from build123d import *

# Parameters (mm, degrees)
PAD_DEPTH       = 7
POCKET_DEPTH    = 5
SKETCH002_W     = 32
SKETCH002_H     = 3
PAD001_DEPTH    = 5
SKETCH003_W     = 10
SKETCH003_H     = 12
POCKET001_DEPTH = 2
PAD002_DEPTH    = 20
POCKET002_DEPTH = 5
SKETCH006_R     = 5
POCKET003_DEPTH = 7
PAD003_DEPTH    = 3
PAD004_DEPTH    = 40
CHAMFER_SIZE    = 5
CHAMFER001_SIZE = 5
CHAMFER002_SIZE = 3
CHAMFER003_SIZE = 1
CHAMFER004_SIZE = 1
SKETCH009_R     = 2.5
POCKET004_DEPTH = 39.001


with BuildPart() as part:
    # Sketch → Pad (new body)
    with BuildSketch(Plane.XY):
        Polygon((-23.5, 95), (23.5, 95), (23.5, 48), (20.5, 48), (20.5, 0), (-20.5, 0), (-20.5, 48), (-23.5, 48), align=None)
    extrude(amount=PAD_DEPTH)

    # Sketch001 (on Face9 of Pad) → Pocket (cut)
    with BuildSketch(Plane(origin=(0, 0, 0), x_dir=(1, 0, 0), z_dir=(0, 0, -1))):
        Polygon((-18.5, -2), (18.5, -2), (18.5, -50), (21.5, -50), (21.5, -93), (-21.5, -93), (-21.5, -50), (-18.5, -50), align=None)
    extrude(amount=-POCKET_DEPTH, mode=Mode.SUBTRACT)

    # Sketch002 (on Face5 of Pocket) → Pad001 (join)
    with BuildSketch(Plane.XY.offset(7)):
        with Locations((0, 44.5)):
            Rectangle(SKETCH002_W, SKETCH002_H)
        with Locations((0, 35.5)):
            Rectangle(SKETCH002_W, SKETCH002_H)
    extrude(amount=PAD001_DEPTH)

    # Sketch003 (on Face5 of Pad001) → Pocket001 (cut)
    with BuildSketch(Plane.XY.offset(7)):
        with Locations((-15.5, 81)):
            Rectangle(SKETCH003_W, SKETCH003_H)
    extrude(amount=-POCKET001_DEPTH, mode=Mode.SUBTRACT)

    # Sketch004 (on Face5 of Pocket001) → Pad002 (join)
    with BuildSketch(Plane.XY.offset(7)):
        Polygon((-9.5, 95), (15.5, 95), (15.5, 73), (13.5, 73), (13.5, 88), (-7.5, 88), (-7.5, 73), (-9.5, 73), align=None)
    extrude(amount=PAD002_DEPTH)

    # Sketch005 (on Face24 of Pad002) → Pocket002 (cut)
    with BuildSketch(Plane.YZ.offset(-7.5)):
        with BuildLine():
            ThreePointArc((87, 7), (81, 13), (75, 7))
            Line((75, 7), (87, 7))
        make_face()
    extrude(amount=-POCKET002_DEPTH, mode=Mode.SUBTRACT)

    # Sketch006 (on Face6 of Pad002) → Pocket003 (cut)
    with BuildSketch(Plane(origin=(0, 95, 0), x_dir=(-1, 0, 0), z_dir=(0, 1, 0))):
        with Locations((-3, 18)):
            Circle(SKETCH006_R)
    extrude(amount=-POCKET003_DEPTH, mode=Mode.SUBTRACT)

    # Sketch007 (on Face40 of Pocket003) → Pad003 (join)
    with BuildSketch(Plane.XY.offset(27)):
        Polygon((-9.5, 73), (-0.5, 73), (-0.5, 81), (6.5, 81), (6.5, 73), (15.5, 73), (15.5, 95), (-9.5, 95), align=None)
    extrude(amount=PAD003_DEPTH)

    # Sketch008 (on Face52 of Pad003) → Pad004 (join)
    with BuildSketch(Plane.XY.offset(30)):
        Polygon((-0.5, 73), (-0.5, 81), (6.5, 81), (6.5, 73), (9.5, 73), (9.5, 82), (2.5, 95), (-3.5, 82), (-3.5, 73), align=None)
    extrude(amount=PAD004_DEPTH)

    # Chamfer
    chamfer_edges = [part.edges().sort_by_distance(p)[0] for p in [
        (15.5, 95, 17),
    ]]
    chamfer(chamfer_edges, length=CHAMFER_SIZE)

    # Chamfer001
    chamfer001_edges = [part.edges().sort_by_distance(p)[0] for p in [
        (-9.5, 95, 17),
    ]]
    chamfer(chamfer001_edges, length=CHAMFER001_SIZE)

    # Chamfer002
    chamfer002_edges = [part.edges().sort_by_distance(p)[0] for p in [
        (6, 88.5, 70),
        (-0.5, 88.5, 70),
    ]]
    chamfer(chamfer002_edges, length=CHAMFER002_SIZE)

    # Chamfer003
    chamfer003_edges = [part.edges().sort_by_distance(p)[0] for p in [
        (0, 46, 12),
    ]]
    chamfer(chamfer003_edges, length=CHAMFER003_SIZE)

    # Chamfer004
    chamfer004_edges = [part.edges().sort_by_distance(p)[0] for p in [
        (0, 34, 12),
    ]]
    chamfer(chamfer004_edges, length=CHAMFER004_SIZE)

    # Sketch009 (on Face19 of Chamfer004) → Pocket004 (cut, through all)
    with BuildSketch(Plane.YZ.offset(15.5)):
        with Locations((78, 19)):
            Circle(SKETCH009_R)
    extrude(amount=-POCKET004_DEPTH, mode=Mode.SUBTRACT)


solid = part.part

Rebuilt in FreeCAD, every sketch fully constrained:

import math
import FreeCAD as App
import Part
import Sketcher

V = App.Vector
Q = App.Units.Quantity


def edges_at(feature, points):
    """Names of the edges that pass closest to the given points."""
    edges = feature.Shape.Edges
    near = lambda p: min(range(len(edges)), key=lambda i: edges[i].distToShape(Part.Vertex(*p))[0])
    return sorted({f"Edge{near(p) + 1}" for p in points})


def add_polygon(sketch, points):
    """Adds a closed chain of lines whose ends are joined by coincident constraints."""
    first, n = sketch.GeometryCount, len(points)
    for a, b in zip(points, points[1:] + points[:1]):
        sketch.addGeometry(Part.LineSegment(App.Vector(*a, 0), App.Vector(*b, 0)), False)
    for i in range(n):
        sketch.addConstraint(Sketcher.Constraint("Coincident", first + i, 2, first + (i + 1) % n, 1))

doc = App.newDocument("Part")
params = doc.addObject("Spreadsheet::Sheet", "Params")
for row, (alias, value) in enumerate([
    ("sketch1_width", "47 mm"),
    ("sketch1_width2", "3 mm"),
    ("sketch1_height", "48 mm"),
    ("pad1_length", "7 mm"),
    ("sketch2_width", "37 mm"),
    ("sketch2_width2", "3 mm"),
    ("sketch2_height", "48 mm"),
    ("pocket1_length", "5 mm"),
    ("sketch3_width", "32 mm"),
    ("sketch3_height", "3 mm"),
    ("pad2_length", "5 mm"),
    ("sketch4_width", "10 mm"),
    ("sketch4_height", "12 mm"),
    ("pocket2_length", "2 mm"),
    ("sketch5_width", "25 mm"),
    ("sketch5_width2", "2 mm"),
    ("sketch5_height", "22 mm"),
    ("sketch5_height2", "15 mm"),
    ("pad3_length", "20 mm"),
    ("sketch6_radius", "6 mm"),
    ("pocket3_length", "5 mm"),
    ("sketch7_diameter", "10 mm"),
    ("pocket4_length", "7 mm"),
    ("sketch8_width", "9 mm"),
    ("sketch8_width2", "7 mm"),
    ("sketch8_height", "8 mm"),
    ("sketch8_height2", "22 mm"),
    ("pad4_length", "3 mm"),
    ("sketch9_width", "7 mm"),
    ("sketch9_width2", "3 mm"),
    ("sketch9_height", "8 mm"),
    ("sketch9_height2", "9 mm"),
    ("pad5_length", "40 mm"),
    ("chamfer_size", "5 mm"),
    ("chamfer2_size", "5 mm"),
    ("chamfer3_size", "3 mm"),
    ("chamfer4_size", "1 mm"),
    ("chamfer5_size", "1 mm"),
    ("sketch10_diameter", "5 mm"),
], start=1):
    params.set(f"A{row}", alias)
    params.set(f"B{row}", "=" + value)
    params.setAlias(f"B{row}", alias)

body = doc.addObject("PartDesign::Body", "Body")

# Sketch on XY plane
sketch1 = doc.addObject("Sketcher::SketchObject", "Sketch")
body.addObject(sketch1)
sketch1.AttachmentSupport = (doc.XY_Plane, [""])
sketch1.MapMode = "FlatFace"
add_polygon(sketch1, [(23.5, 95), (-23.5, 95), (-23.5, 48), (-20.5, 48), (-20.5, 0), (20.5, 0), (20.5, 48), (23.5, 48)])  # lines 0-7
sketch1.addConstraint([
    Sketcher.Constraint("Horizontal", 0),
    Sketcher.Constraint("Vertical", 1),
    Sketcher.Constraint("Horizontal", 2),
    Sketcher.Constraint("Vertical", 3),
    Sketcher.Constraint("Horizontal", 4),
    Sketcher.Constraint("Vertical", 5),
    Sketcher.Constraint("Horizontal", 6),
    Sketcher.Constraint("Vertical", 7),
    Sketcher.Constraint("Symmetric", 3, 2, 4, 2, -1, 1),
    Sketcher.Constraint("Symmetric", 1, 2, 6, 2, -2),
    Sketcher.Constraint("Equal", 0, 1),
    Sketcher.Constraint("DistanceX", 0, 2, 0, 1, Q("47 mm")),
    Sketcher.Constraint("DistanceX", 2, 1, 2, 2, Q("3 mm")),
    Sketcher.Constraint("DistanceY", 3, 2, 3, 1, Q("48 mm")),
])
sketch1.setExpression("Constraints[19]", "Params.sketch1_width")
sketch1.setExpression("Constraints[20]", "Params.sketch1_width2")
sketch1.setExpression("Constraints[21]", "Params.sketch1_height")
pad1 = doc.addObject("PartDesign::Pad", "Pad")
body.addObject(pad1)
pad1.Profile = sketch1
pad1.setExpression("Length", "Params.pad1_length")

# Sketch on XY plane
sketch2 = doc.addObject("Sketcher::SketchObject", "Sketch001")
body.addObject(sketch2)
sketch2.AttachmentSupport = (doc.XY_Plane, [""])
sketch2.MapMode = "FlatFace"
add_polygon(sketch2, [(18.5, 2), (-18.5, 2), (-18.5, 50), (-21.5, 50), (-21.5, 93), (21.5, 93), (21.5, 50), (18.5, 50)])  # lines 0-7
sketch2.addConstraint([
    Sketcher.Constraint("Horizontal", 0),
    Sketcher.Constraint("Vertical", 1),
    Sketcher.Constraint("Horizontal", 2),
    Sketcher.Constraint("Vertical", 3),
    Sketcher.Constraint("Horizontal", 4),
    Sketcher.Constraint("Vertical", 5),
    Sketcher.Constraint("Horizontal", 6),
    Sketcher.Constraint("Vertical", 7),
    Sketcher.Constraint("Symmetric", 2, 2, 5, 2, -2),
    Sketcher.Constraint("Equal", 2, 6),
    Sketcher.Constraint("Equal", 4, 3),
    Sketcher.Constraint("DistanceX", 0, 2, 0, 1, Q("37 mm")),
    Sketcher.Constraint("DistanceX", 2, 2, 2, 1, Q("3 mm")),
    Sketcher.Constraint("DistanceY", 1, 1, 1, 2, Q("48 mm")),
    Sketcher.Constraint("DistanceY", -1, 1, 0, 2, Q("2 mm")),
])
sketch2.setExpression("Constraints[19]", "Params.sketch2_width")
sketch2.setExpression("Constraints[20]", "Params.sketch2_width2")
sketch2.setExpression("Constraints[21]", "Params.sketch2_height")
pocket1 = doc.addObject("PartDesign::Pocket", "Pocket")
body.addObject(pocket1)
pocket1.Profile = sketch2
pocket1.setExpression("Length", "Params.pocket1_length")
pocket1.Reversed = True

# Sketch on XY plane
sketch3 = doc.addObject("Sketcher::SketchObject", "Sketch002")
body.addObject(sketch3)
sketch3.AttachmentSupport = (doc.XY_Plane, [""])
sketch3.MapMode = "FlatFace"
sketch3.AttachmentOffset = App.Placement(V(0, 0, 7), App.Rotation())
add_polygon(sketch3, [(-16, 46), (-16, 43), (16, 43), (16, 46)])  # lines 0-3
add_polygon(sketch3, [(-16, 37), (-16, 34), (16, 34), (16, 37)])  # lines 4-7
sketch3.addConstraint([
    Sketcher.Constraint("Vertical", 0),
    Sketcher.Constraint("Horizontal", 1),
    Sketcher.Constraint("Vertical", 2),
    Sketcher.Constraint("Horizontal", 3),
    Sketcher.Constraint("Vertical", 4),
    Sketcher.Constraint("Horizontal", 5),
    Sketcher.Constraint("Vertical", 6),
    Sketcher.Constraint("Horizontal", 7),
    Sketcher.Constraint("Vertical", 3, 2, 4, 2),
    Sketcher.Constraint("Vertical", 2, 2, 5, 2),
    Sketcher.Constraint("Equal", 2, 4),
    Sketcher.Constraint("DistanceX", 1, 1, 1, 2, Q("32 mm")),
    Sketcher.Constraint("DistanceY", 0, 2, 0, 1, Q("3 mm")),
    Sketcher.Constraint("DistanceX", 0, 2, -1, 1, Q("16 mm")),
    Sketcher.Constraint("DistanceY", -1, 1, 0, 2, Q("43 mm")),
    Sketcher.Constraint("DistanceY", -1, 1, 4, 2, Q("34 mm")),
])
sketch3.setExpression("Constraints[19]", "Params.sketch3_width")
sketch3.setExpression("Constraints[20]", "Params.sketch3_height")
pad2 = doc.addObject("PartDesign::Pad", "Pad001")
body.addObject(pad2)
pad2.Profile = sketch3
pad2.setExpression("Length", "Params.pad2_length")

# Sketch on XY plane
sketch4 = doc.addObject("Sketcher::SketchObject", "Sketch003")
body.addObject(sketch4)
sketch4.AttachmentSupport = (doc.XY_Plane, [""])
sketch4.MapMode = "FlatFace"
sketch4.AttachmentOffset = App.Placement(V(0, 0, 7), App.Rotation())
add_polygon(sketch4, [(-20, 87), (-20, 75), (-10, 75), (-10, 87)])  # lines 0-3
sketch4.addConstraint([
    Sketcher.Constraint("Vertical", 0),
    Sketcher.Constraint("Horizontal", 1),
    Sketcher.Constraint("Vertical", 2),
    Sketcher.Constraint("Horizontal", 3),
    Sketcher.Constraint("DistanceX", 1, 1, 1, 2, Q("10 mm")),
    Sketcher.Constraint("DistanceY", 0, 2, 0, 1, Q("12 mm")),
    Sketcher.Constraint("DistanceY", -1, 1, 0, 2, Q("75 mm")),
    Sketcher.Constraint("DistanceX", 0, 2, -1, 1, Q("20.5 mm")),
])
sketch4.setExpression("Constraints[8]", "Params.sketch4_width")
sketch4.setExpression("Constraints[9]", "Params.sketch4_height")
pocket2 = doc.addObject("PartDesign::Pocket", "Pocket001")
body.addObject(pocket2)
pocket2.Profile = sketch4
pocket2.setExpression("Length", "Params.pocket2_length")

# Sketch on XY plane
sketch5 = doc.addObject("Sketcher::SketchObject", "Sketch004")
body.addObject(sketch5)
sketch5.AttachmentSupport = (doc.XY_Plane, [""])
sketch5.MapMode = "FlatFace"
sketch5.AttachmentOffset = App.Placement(V(0, 0, 7), App.Rotation())
add_polygon(sketch5, [(15.5, 95), (-9.5, 95), (-9.5, 73), (-7.5, 73), (-7.5, 88), (13.5, 88), (13.5, 73), (15.5, 73)])  # lines 0-7
sketch5.addConstraint([
    Sketcher.Constraint("Horizontal", 0),
    Sketcher.Constraint("Vertical", 1),
    Sketcher.Constraint("Horizontal", 2),
    Sketcher.Constraint("Vertical", 3),
    Sketcher.Constraint("Horizontal", 4),
    Sketcher.Constraint("Vertical", 5),
    Sketcher.Constraint("Horizontal", 6),
    Sketcher.Constraint("Vertical", 7),
    Sketcher.Constraint("Horizontal", 2, 2, 5, 2),
    Sketcher.Constraint("Equal", 2, 6),
    Sketcher.Constraint("DistanceX", 0, 2, 0, 1, Q("25 mm")),
    Sketcher.Constraint("DistanceX", 2, 1, 2, 2, Q("2 mm")),
    Sketcher.Constraint("DistanceY", 1, 2, 1, 1, Q("22 mm")),
    Sketcher.Constraint("DistanceY", 3, 1, 3, 2, Q("15 mm")),
    Sketcher.Constraint("DistanceY", -1, 1, 0, 2, Q("95 mm")),
    Sketcher.Constraint("DistanceX", 0, 2, -1, 1, Q("9.5 mm")),
])
sketch5.setExpression("Constraints[18]", "Params.sketch5_width")
sketch5.setExpression("Constraints[19]", "Params.sketch5_width2")
sketch5.setExpression("Constraints[20]", "Params.sketch5_height")
sketch5.setExpression("Constraints[21]", "Params.sketch5_height2")
pad3 = doc.addObject("PartDesign::Pad", "Pad002")
body.addObject(pad3)
pad3.Profile = sketch5
pad3.setExpression("Length", "Params.pad3_length")

# Sketch on YZ plane
sketch6 = doc.addObject("Sketcher::SketchObject", "Sketch005")
body.addObject(sketch6)
sketch6.AttachmentSupport = (doc.YZ_Plane, [""])
sketch6.MapMode = "FlatFace"
sketch6.AttachmentOffset = App.Placement(V(0, 0, -7.5), App.Rotation())
sketch6.addGeometry([
    Part.ArcOfCircle(Part.Circle(V(81, 7, 0), V(0, 0, 1), 6), math.radians(0), math.radians(180)),
    Part.LineSegment(V(75, 7, 0), V(87, 7, 0)),
], False)
sketch6.addConstraint([
    Sketcher.Constraint("Coincident", 0, 1, 1, 2),
    Sketcher.Constraint("Coincident", 1, 1, 0, 2),
    Sketcher.Constraint("Horizontal", 1),
    Sketcher.Constraint("Radius", 0, Q("6 mm")),
    Sketcher.Constraint("DistanceX", -1, 1, 0, 3, Q("81 mm")),
    Sketcher.Constraint("DistanceY", -1, 1, 0, 3, Q("7 mm")),
    Sketcher.Constraint("DistanceY", -1, 1, 0, 1, Q("7 mm")),
])
sketch6.setExpression("Constraints[3]", "Params.sketch6_radius")
pocket3 = doc.addObject("PartDesign::Pocket", "Pocket002")
body.addObject(pocket3)
pocket3.Profile = sketch6
pocket3.setExpression("Length", "Params.pocket3_length")

# Sketch on XZ plane
sketch7 = doc.addObject("Sketcher::SketchObject", "Sketch006")
body.addObject(sketch7)
sketch7.AttachmentSupport = (doc.XZ_Plane, [""])
sketch7.MapMode = "FlatFace"
sketch7.AttachmentOffset = App.Placement(V(0, 0, -95), App.Rotation())
sketch7.addGeometry(Part.Circle(V(3, 18, 0), V(0, 0, 1), 5), False)
sketch7.addConstraint([
    Sketcher.Constraint("Diameter", 0, Q("10 mm")),
    Sketcher.Constraint("DistanceX", -1, 1, 0, 3, Q("3 mm")),
    Sketcher.Constraint("DistanceY", -1, 1, 0, 3, Q("18 mm")),
])
sketch7.setExpression("Constraints[0]", "Params.sketch7_diameter")
pocket4 = doc.addObject("PartDesign::Pocket", "Pocket003")
body.addObject(pocket4)
pocket4.Profile = sketch7
pocket4.setExpression("Length", "Params.pocket4_length")
pocket4.Reversed = True

# Sketch on XY plane
sketch8 = doc.addObject("Sketcher::SketchObject", "Sketch007")
body.addObject(sketch8)
sketch8.AttachmentSupport = (doc.XY_Plane, [""])
sketch8.MapMode = "FlatFace"
sketch8.AttachmentOffset = App.Placement(V(0, 0, 27), App.Rotation())
add_polygon(sketch8, [(-10, 73), (0, 73), (0, 81), (6, 81), (6, 73), (16, 73), (16, 95), (-10, 95)])  # lines 0-7
sketch8.addConstraint([
    Sketcher.Constraint("Horizontal", 0),
    Sketcher.Constraint("Vertical", 1),
    Sketcher.Constraint("Horizontal", 2),
    Sketcher.Constraint("Vertical", 3),
    Sketcher.Constraint("Horizontal", 4),
    Sketcher.Constraint("Vertical", 5),
    Sketcher.Constraint("Horizontal", 6),
    Sketcher.Constraint("Vertical", 7),
    Sketcher.Constraint("Horizontal", 0, 2, 3, 2),
    Sketcher.Constraint("Equal", 0, 4),
    Sketcher.Constraint("DistanceX", 0, 1, 0, 2, Q("9 mm")),
    Sketcher.Constraint("DistanceX", 2, 1, 2, 2, Q("7 mm")),
    Sketcher.Constraint("DistanceY", 1, 1, 1, 2, Q("8 mm")),
    Sketcher.Constraint("DistanceY", 5, 1, 5, 2, Q("22 mm")),
    Sketcher.Constraint("DistanceY", -1, 1, 0, 2, Q("73 mm")),
    Sketcher.Constraint("DistanceX", 0, 2, -1, 1, Q("0.5 mm")),
])
sketch8.setExpression("Constraints[18]", "Params.sketch8_width")
sketch8.setExpression("Constraints[19]", "Params.sketch8_width2")
sketch8.setExpression("Constraints[20]", "Params.sketch8_height")
sketch8.setExpression("Constraints[21]", "Params.sketch8_height2")
pad4 = doc.addObject("PartDesign::Pad", "Pad003")
body.addObject(pad4)
pad4.Profile = sketch8
pad4.setExpression("Length", "Params.pad4_length")

# Sketch on XY plane
sketch9 = doc.addObject("Sketcher::SketchObject", "Sketch008")
body.addObject(sketch9)
sketch9.AttachmentSupport = (doc.XY_Plane, [""])
sketch9.MapMode = "FlatFace"
sketch9.AttachmentOffset = App.Placement(V(0, 0, 30), App.Rotation())
add_polygon(sketch9, [(-0.5, 73), (-0.5, 81), (6.5, 81), (6.5, 73), (9.5, 73), (9.5, 82), (2.5, 95), (-3.5, 82), (-3.5, 73)])  # lines 0-8
sketch9.addConstraint([
    Sketcher.Constraint("Vertical", 0),
    Sketcher.Constraint("Horizontal", 1),
    Sketcher.Constraint("Vertical", 2),
    Sketcher.Constraint("Horizontal", 3),
    Sketcher.Constraint("Vertical", 4),
    Sketcher.Constraint("Vertical", 7),
    Sketcher.Constraint("Horizontal", 8),
    Sketcher.Constraint("Horizontal", 4, 2, 6, 2),
    Sketcher.Constraint("Horizontal", 3, 2, 7, 2),
    Sketcher.Constraint("Equal", 3, 8),
    Sketcher.Constraint("DistanceX", 1, 1, 1, 2, Q("7 mm")),
    Sketcher.Constraint("DistanceX", 3, 1, 3, 2, Q("3 mm")),
    Sketcher.Constraint("DistanceY", 0, 1, 0, 2, Q("8 mm")),
    Sketcher.Constraint("DistanceY", 4, 1, 4, 2, Q("9 mm")),
    Sketcher.Constraint("DistanceY", -1, 1, 0, 2, Q("81 mm")),
    Sketcher.Constraint("DistanceY", -1, 1, 5, 2, Q("95 mm")),
    Sketcher.Constraint("DistanceX", 0, 2, 5, 2, Q("3 mm")),
    Sketcher.Constraint("DistanceX", 0, 2, -1, 1, Q("0.5 mm")),
])
sketch9.setExpression("Constraints[19]", "Params.sketch9_width")
sketch9.setExpression("Constraints[20]", "Params.sketch9_width2")
sketch9.setExpression("Constraints[21]", "Params.sketch9_height")
sketch9.setExpression("Constraints[22]", "Params.sketch9_height2")
pad5 = doc.addObject("PartDesign::Pad", "Pad004")
body.addObject(pad5)
pad5.Profile = sketch9
pad5.setExpression("Length", "Params.pad5_length")
doc.recompute()

chamfer = doc.addObject("PartDesign::Chamfer", "Chamfer")
body.addObject(chamfer)
chamfer.Base = (pad5, edges_at(pad5, [(15.5, 95, 18.5)]))
chamfer.setExpression("Size", "Params.chamfer_size")
doc.recompute()

chamfer2 = doc.addObject("PartDesign::Chamfer", "Chamfer001")
body.addObject(chamfer2)
chamfer2.Base = (chamfer, edges_at(chamfer, [(-9.5, 95, 18.5)]))
chamfer2.setExpression("Size", "Params.chamfer2_size")
doc.recompute()

chamfer3 = doc.addObject("PartDesign::Chamfer", "Chamfer002")
body.addObject(chamfer3)
chamfer3.Base = (chamfer2, edges_at(chamfer2, [(6, 88.5, 70), (-0.5, 88.5, 70)]))
chamfer3.setExpression("Size", "Params.chamfer3_size")
doc.recompute()

chamfer4 = doc.addObject("PartDesign::Chamfer", "Chamfer003")
body.addObject(chamfer4)
chamfer4.Base = (chamfer3, edges_at(chamfer3, [(0, 46, 12)]))
chamfer4.setExpression("Size", "Params.chamfer4_size")
doc.recompute()

chamfer5 = doc.addObject("PartDesign::Chamfer", "Chamfer004")
body.addObject(chamfer5)
chamfer5.Base = (chamfer4, edges_at(chamfer4, [(0, 34, 12)]))
chamfer5.setExpression("Size", "Params.chamfer5_size")

# Sketch on YZ plane
sketch10 = doc.addObject("Sketcher::SketchObject", "Sketch009")
body.addObject(sketch10)
sketch10.AttachmentSupport = (doc.YZ_Plane, [""])
sketch10.MapMode = "FlatFace"
sketch10.AttachmentOffset = App.Placement(V(0, 0, 15.5), App.Rotation())
sketch10.addGeometry(Part.Circle(V(78, 19, 0), V(0, 0, 1), 2.5), False)
sketch10.addConstraint([
    Sketcher.Constraint("Diameter", 0, Q("5 mm")),
    Sketcher.Constraint("DistanceX", -1, 1, 0, 3, Q("78 mm")),
    Sketcher.Constraint("DistanceY", -1, 1, 0, 3, Q("19 mm")),
])
sketch10.setExpression("Constraints[0]", "Params.sketch10_diameter")
pocket5 = doc.addObject("PartDesign::Pocket", "Pocket004")
body.addObject(pocket5)
pocket5.Profile = sketch10
pocket5.Type = "ThroughAll"

doc.recompute()
